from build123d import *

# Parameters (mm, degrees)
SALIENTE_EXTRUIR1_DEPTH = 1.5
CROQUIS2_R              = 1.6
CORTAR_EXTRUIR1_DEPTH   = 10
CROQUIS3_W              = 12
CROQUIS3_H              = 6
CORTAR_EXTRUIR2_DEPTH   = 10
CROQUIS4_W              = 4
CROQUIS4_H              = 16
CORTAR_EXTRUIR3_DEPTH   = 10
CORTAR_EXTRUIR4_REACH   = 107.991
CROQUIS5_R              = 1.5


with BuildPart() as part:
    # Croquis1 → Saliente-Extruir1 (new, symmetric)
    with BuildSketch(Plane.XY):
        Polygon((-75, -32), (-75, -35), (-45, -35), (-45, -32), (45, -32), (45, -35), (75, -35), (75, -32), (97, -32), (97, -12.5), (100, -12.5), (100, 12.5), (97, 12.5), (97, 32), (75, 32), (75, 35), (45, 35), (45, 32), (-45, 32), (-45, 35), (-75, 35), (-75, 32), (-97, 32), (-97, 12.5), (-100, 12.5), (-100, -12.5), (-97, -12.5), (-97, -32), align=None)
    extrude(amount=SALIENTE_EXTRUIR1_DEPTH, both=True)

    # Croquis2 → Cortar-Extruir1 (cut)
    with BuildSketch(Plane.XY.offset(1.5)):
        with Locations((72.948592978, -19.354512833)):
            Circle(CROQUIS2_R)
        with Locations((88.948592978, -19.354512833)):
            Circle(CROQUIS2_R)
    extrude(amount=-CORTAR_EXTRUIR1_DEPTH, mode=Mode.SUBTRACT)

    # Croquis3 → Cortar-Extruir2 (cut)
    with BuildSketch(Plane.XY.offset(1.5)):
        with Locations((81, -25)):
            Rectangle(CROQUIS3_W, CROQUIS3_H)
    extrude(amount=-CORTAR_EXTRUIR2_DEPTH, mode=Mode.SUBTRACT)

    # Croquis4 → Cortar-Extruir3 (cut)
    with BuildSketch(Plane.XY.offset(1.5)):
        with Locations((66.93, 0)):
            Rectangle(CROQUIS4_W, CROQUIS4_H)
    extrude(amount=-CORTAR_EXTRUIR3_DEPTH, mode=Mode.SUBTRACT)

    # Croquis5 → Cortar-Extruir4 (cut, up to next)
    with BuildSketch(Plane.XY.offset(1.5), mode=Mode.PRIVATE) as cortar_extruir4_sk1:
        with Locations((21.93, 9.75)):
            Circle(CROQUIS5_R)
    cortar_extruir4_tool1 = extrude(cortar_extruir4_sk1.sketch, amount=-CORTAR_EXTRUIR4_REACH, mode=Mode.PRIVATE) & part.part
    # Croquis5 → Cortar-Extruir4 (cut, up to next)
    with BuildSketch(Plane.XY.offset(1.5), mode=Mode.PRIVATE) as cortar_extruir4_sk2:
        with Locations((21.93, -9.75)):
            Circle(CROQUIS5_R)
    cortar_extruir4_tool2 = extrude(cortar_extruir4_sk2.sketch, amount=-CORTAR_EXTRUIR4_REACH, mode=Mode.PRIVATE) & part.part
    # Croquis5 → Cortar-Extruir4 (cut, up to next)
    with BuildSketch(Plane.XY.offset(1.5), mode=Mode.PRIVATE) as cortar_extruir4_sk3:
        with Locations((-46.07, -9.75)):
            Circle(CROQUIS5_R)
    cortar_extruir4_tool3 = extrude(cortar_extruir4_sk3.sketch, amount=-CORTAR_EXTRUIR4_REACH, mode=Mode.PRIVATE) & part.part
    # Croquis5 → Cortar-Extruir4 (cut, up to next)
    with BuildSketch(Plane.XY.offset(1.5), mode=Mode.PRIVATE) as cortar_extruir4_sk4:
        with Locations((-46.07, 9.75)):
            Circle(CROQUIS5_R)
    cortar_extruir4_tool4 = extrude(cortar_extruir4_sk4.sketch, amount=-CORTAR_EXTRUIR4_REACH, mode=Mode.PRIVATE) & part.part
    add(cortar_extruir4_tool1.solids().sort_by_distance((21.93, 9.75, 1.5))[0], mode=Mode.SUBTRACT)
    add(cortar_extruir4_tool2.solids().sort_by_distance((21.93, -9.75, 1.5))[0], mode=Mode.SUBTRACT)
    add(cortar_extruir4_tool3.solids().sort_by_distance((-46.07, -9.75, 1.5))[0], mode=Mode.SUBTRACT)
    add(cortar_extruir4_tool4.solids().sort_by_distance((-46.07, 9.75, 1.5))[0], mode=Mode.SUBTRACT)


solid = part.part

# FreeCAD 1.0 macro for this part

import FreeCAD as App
import Part
import Sketcher


def add_polygon(sketch, points):
    """Adds a closed chain of lines whose ends are joined by coincident constraints."""
    first, n = sketch.GeometryCount, len(points)
    for a, b in zip(points, points[1:] + points[:1]):
        sketch.addGeometry(Part.LineSegment(App.Vector(*a, 0), App.Vector(*b, 0)), False)
    for i in range(n):
        sketch.addConstraint(Sketcher.Constraint("Coincident", first + i, 2, first + (i + 1) % n, 1))

doc = App.newDocument("Part")
body = doc.addObject("PartDesign::Body", "Body")

# Sketch on XY plane
sketch1 = doc.addObject("Sketcher::SketchObject", "Sketch")
body.addObject(sketch1)
sketch1.AttachmentSupport = (doc.XY_Plane, [""])
sketch1.MapMode = "FlatFace"
add_polygon(sketch1, [(-75, -32), (-75, -35), (-45, -35), (-45, -32), (45, -32), (45, -35), (75, -35), (75, -32), (97, -32), (97, -12.5), (100, -12.5), (100, 12.5), (97, 12.5), (97, 32), (75, 32), (75, 35), (45, 35), (45, 32), (-45, 32), (-45, 35), (-75, 35), (-75, 32), (-97, 32), (-97, 12.5), (-100, 12.5), (-100, -12.5), (-97, -12.5), (-97, -32)])  # lines 0-27
sketch1.addConstraint([
    Sketcher.Constraint("Vertical", 0),
    Sketcher.Constraint("Horizontal", 1),
    Sketcher.Constraint("Vertical", 2),
    Sketcher.Constraint("Horizontal", 3),
    Sketcher.Constraint("Vertical", 4),
    Sketcher.Constraint("Horizontal", 5),
    Sketcher.Constraint("Vertical", 6),
    Sketcher.Constraint("Horizontal", 7),
    Sketcher.Constraint("Vertical", 8),
    Sketcher.Constraint("Horizontal", 9),
    Sketcher.Constraint("Vertical", 10),
    Sketcher.Constraint("Horizontal", 11),
    Sketcher.Constraint("Vertical", 12),
    Sketcher.Constraint("Horizontal", 13),
    Sketcher.Constraint("Vertical", 14),
    Sketcher.Constraint("Horizontal", 15),
    Sketcher.Constraint("Vertical", 16),
    Sketcher.Constraint("Horizontal", 17),
    Sketcher.Constraint("Vertical", 18),
    Sketcher.Constraint("Horizontal", 19),
    Sketcher.Constraint("Vertical", 20),
    Sketcher.Constraint("Horizontal", 21),
    Sketcher.Constraint("Vertical", 22),
    Sketcher.Constraint("Horizontal", 23),
    Sketcher.Constraint("Vertical", 24),
    Sketcher.Constraint("Horizontal", 25),
    Sketcher.Constraint("Vertical", 26),
    Sketcher.Constraint("Horizontal", 27),
    Sketcher.Constraint("Symmetric", 0, 2, 14, 2, -1, 1),
    Sketcher.Constraint("Symmetric", 2, 2, 16, 2, -1, 1),
    Sketcher.Constraint("Symmetric", 4, 2, 18, 2, -1, 1),
    Sketcher.Constraint("Symmetric", 6, 2, 20, 2, -1, 1),
    Sketcher.Constraint("Symmetric", 8, 2, 22, 2, -1, 1),
    Sketcher.Constraint("Symmetric", 10, 2, 24, 2, -1, 1),
    Sketcher.Constraint("Symmetric", 12, 2, 26, 2, -1, 1),
    Sketcher.Constraint("Symmetric", 1, 2, 4, 2, -2),
    Sketcher.Constraint("Symmetric", 13, 2, 20, 2, -2),
    Sketcher.Constraint("Symmetric", 11, 2, 22, 2, -2),
    Sketcher.Constraint("Horizontal", 3, 2, 6, 2),
    Sketcher.Constraint("Equal", 25, 0),
    Sketcher.Constraint("DistanceX", 1, 1, 1, 2, 30.0),
    Sketcher.Constraint("DistanceX", 3, 1, 3, 2, 90.0),
    Sketcher.Constraint("DistanceX", 7, 1, 7, 2, 22.0),
    Sketcher.Constraint("DistanceX", 9, 1, 9, 2, 3.0),
    Sketcher.Constraint("DistanceY", 10, 1, 10, 2, 25.0),
    Sketcher.Constraint("DistanceY", 8, 1, 8, 2, 19.5),
])
pad1 = doc.addObject("PartDesign::Pad", "Pad")
body.addObject(pad1)
pad1.Profile = sketch1
pad1.Length = 3
pad1.Midplane = True

# Sketch on XY plane
sketch2 = doc.addObject("Sketcher::SketchObject", "Sketch001")
body.addObject(sketch2)
sketch2.AttachmentSupport = (doc.XY_Plane, [""])
sketch2.MapMode = "FlatFace"
sketch2.AttachmentOffset = App.Placement(App.Vector(0, 0, 1.5), App.Rotation())
sketch2.addGeometry([
    Part.Circle(App.Vector(72.9, -19.4, 0), App.Vector(0, 0, 1), 1.6),
    Part.Circle(App.Vector(88.9, -19.4, 0), App.Vector(0, 0, 1), 1.6),
], False)
sketch2.addConstraint([
    Sketcher.Constraint("Equal", 0, 1),
    Sketcher.Constraint("Horizontal", 0, 3, 1, 3),
    Sketcher.Constraint("Diameter", 0, 3.2),
    Sketcher.Constraint("DistanceX", 0, 3, 1, 3, 16.0),
    Sketcher.Constraint("DistanceX", -1, 1, 0, 3, 72.948593),
    Sketcher.Constraint("DistanceY", 0, 3, -1, 1, 19.354513),
])
pocket1 = doc.addObject("PartDesign::Pocket", "Pocket")
body.addObject(pocket1)
pocket1.Profile = sketch2
pocket1.Length = 10

# Sketch on XY plane
sketch3 = doc.addObject("Sketcher::SketchObject", "Sketch002")
body.addObject(sketch3)
sketch3.AttachmentSupport = (doc.XY_Plane, [""])
sketch3.MapMode = "FlatFace"
sketch3.AttachmentOffset = App.Placement(App.Vector(0, 0, 1.5), App.Rotation())
add_polygon(sketch3, [(75, -22), (75, -28), (87, -28), (87, -22)])  # lines 0-3
sketch3.addConstraint([
    Sketcher.Constraint("Vertical", 0),
    Sketcher.Constraint("Horizontal", 1),
    Sketcher.Constraint("Vertical", 2),
    Sketcher.Constraint("Horizontal", 3),
    Sketcher.Constraint("DistanceX", 1, 1, 1, 2, 12.0),
    Sketcher.Constraint("DistanceY", 0, 2, 0, 1, 6.0),
    Sketcher.Constraint("DistanceX", -1, 1, 0, 2, 75.0),
    Sketcher.Constraint("DistanceY", 0, 2, -1, 1, 28.0),
])
pocket2 = doc.addObject("PartDesign::Pocket", "Pocket001")
body.addObject(pocket2)
pocket2.Profile = sketch3
pocket2.Length = 10

# Sketch on XY plane
sketch4 = doc.addObject("Sketcher::SketchObject", "Sketch003")
body.addObject(sketch4)
sketch4.AttachmentSupport = (doc.XY_Plane, [""])
sketch4.MapMode = "FlatFace"
sketch4.AttachmentOffset = App.Placement(App.Vector(0, 0, 1.5), App.Rotation())
add_polygon(sketch4, [(64.9, 8), (64.9, -8), (68.9, -8), (68.9, 8)])  # lines 0-3
sketch4.addConstraint([
    Sketcher.Constraint("Vertical", 0),
    Sketcher.Constraint("Horizontal", 1),
    Sketcher.Constraint("Vertical", 2),
    Sketcher.Constraint("Horizontal", 3),
    Sketcher.Constraint("DistanceX", 1, 1, 1, 2, 4.0),
    Sketcher.Constraint("DistanceY", 0, 2, 0, 1, 16.0),
    Sketcher.Constraint("DistanceY", 0, 2, -1, 1, 8.0),
    Sketcher.Constraint("DistanceX", -1, 1, 0, 2, 64.93),
])
pocket3 = doc.addObject("PartDesign::Pocket", "Pocket002")
body.addObject(pocket3)
pocket3.Profile = sketch4
pocket3.Length = 10

# Sketch on XY plane
sketch5 = doc.addObject("Sketcher::SketchObject", "Sketch004")
body.addObject(sketch5)
sketch5.AttachmentSupport = (doc.XY_Plane, [""])
sketch5.MapMode = "FlatFace"
sketch5.AttachmentOffset = App.Placement(App.Vector(0, 0, 1.5), App.Rotation())
sketch5.addGeometry(Part.Circle(App.Vector(21.9, 9.8, 0), App.Vector(0, 0, 1), 1.5), False)
sketch5.addConstraint([
    Sketcher.Constraint("Diameter", 0, 3.0),
    Sketcher.Constraint("DistanceX", -1, 1, 0, 3, 21.93),
    Sketcher.Constraint("DistanceY", -1, 1, 0, 3, 9.75),
])
pocket4 = doc.addObject("PartDesign::Pocket", "Pocket003")
body.addObject(pocket4)
pocket4.Profile = sketch5
pocket4.Type = "UpToFirst"

# Sketch on XY plane
sketch6 = doc.addObject("Sketcher::SketchObject", "Sketch005")
body.addObject(sketch6)
sketch6.AttachmentSupport = (doc.XY_Plane, [""])
sketch6.MapMode = "FlatFace"
sketch6.AttachmentOffset = App.Placement(App.Vector(0, 0, 1.5), App.Rotation())
sketch6.addGeometry(Part.Circle(App.Vector(21.9, -9.8, 0), App.Vector(0, 0, 1), 1.5), False)
sketch6.addConstraint([
    Sketcher.Constraint("Diameter", 0, 3.0),
    Sketcher.Constraint("DistanceX", -1, 1, 0, 3, 21.93),
    Sketcher.Constraint("DistanceY", 0, 3, -1, 1, 9.75),
])
pocket5 = doc.addObject("PartDesign::Pocket", "Pocket004")
body.addObject(pocket5)
pocket5.Profile = sketch6
pocket5.Type = "UpToFirst"

# Sketch on XY plane
sketch7 = doc.addObject("Sketcher::SketchObject", "Sketch006")
body.addObject(sketch7)
sketch7.AttachmentSupport = (doc.XY_Plane, [""])
sketch7.MapMode = "FlatFace"
sketch7.AttachmentOffset = App.Placement(App.Vector(0, 0, 1.5), App.Rotation())
sketch7.addGeometry(Part.Circle(App.Vector(-46.1, -9.8, 0), App.Vector(0, 0, 1), 1.5), False)
sketch7.addConstraint([
    Sketcher.Constraint("Diameter", 0, 3.0),
    Sketcher.Constraint("DistanceX", 0, 3, -1, 1, 46.07),
    Sketcher.Constraint("DistanceY", 0, 3, -1, 1, 9.75),
])
pocket6 = doc.addObject("PartDesign::Pocket", "Pocket005")
body.addObject(pocket6)
pocket6.Profile = sketch7
pocket6.Type = "UpToFirst"

# Sketch on XY plane
sketch8 = doc.addObject("Sketcher::SketchObject", "Sketch007")
body.addObject(sketch8)
sketch8.AttachmentSupport = (doc.XY_Plane, [""])
sketch8.MapMode = "FlatFace"
sketch8.AttachmentOffset = App.Placement(App.Vector(0, 0, 1.5), App.Rotation())
sketch8.addGeometry(Part.Circle(App.Vector(-46.1, 9.8, 0), App.Vector(0, 0, 1), 1.5), False)
sketch8.addConstraint([
    Sketcher.Constraint("Diameter", 0, 3.0),
    Sketcher.Constraint("DistanceX", 0, 3, -1, 1, 46.07),
    Sketcher.Constraint("DistanceY", -1, 1, 0, 3, 9.75),
])
pocket7 = doc.addObject("PartDesign::Pocket", "Pocket006")
body.addObject(pocket7)
pocket7.Profile = sketch8
pocket7.Type = "UpToFirst"

doc.recompute()
